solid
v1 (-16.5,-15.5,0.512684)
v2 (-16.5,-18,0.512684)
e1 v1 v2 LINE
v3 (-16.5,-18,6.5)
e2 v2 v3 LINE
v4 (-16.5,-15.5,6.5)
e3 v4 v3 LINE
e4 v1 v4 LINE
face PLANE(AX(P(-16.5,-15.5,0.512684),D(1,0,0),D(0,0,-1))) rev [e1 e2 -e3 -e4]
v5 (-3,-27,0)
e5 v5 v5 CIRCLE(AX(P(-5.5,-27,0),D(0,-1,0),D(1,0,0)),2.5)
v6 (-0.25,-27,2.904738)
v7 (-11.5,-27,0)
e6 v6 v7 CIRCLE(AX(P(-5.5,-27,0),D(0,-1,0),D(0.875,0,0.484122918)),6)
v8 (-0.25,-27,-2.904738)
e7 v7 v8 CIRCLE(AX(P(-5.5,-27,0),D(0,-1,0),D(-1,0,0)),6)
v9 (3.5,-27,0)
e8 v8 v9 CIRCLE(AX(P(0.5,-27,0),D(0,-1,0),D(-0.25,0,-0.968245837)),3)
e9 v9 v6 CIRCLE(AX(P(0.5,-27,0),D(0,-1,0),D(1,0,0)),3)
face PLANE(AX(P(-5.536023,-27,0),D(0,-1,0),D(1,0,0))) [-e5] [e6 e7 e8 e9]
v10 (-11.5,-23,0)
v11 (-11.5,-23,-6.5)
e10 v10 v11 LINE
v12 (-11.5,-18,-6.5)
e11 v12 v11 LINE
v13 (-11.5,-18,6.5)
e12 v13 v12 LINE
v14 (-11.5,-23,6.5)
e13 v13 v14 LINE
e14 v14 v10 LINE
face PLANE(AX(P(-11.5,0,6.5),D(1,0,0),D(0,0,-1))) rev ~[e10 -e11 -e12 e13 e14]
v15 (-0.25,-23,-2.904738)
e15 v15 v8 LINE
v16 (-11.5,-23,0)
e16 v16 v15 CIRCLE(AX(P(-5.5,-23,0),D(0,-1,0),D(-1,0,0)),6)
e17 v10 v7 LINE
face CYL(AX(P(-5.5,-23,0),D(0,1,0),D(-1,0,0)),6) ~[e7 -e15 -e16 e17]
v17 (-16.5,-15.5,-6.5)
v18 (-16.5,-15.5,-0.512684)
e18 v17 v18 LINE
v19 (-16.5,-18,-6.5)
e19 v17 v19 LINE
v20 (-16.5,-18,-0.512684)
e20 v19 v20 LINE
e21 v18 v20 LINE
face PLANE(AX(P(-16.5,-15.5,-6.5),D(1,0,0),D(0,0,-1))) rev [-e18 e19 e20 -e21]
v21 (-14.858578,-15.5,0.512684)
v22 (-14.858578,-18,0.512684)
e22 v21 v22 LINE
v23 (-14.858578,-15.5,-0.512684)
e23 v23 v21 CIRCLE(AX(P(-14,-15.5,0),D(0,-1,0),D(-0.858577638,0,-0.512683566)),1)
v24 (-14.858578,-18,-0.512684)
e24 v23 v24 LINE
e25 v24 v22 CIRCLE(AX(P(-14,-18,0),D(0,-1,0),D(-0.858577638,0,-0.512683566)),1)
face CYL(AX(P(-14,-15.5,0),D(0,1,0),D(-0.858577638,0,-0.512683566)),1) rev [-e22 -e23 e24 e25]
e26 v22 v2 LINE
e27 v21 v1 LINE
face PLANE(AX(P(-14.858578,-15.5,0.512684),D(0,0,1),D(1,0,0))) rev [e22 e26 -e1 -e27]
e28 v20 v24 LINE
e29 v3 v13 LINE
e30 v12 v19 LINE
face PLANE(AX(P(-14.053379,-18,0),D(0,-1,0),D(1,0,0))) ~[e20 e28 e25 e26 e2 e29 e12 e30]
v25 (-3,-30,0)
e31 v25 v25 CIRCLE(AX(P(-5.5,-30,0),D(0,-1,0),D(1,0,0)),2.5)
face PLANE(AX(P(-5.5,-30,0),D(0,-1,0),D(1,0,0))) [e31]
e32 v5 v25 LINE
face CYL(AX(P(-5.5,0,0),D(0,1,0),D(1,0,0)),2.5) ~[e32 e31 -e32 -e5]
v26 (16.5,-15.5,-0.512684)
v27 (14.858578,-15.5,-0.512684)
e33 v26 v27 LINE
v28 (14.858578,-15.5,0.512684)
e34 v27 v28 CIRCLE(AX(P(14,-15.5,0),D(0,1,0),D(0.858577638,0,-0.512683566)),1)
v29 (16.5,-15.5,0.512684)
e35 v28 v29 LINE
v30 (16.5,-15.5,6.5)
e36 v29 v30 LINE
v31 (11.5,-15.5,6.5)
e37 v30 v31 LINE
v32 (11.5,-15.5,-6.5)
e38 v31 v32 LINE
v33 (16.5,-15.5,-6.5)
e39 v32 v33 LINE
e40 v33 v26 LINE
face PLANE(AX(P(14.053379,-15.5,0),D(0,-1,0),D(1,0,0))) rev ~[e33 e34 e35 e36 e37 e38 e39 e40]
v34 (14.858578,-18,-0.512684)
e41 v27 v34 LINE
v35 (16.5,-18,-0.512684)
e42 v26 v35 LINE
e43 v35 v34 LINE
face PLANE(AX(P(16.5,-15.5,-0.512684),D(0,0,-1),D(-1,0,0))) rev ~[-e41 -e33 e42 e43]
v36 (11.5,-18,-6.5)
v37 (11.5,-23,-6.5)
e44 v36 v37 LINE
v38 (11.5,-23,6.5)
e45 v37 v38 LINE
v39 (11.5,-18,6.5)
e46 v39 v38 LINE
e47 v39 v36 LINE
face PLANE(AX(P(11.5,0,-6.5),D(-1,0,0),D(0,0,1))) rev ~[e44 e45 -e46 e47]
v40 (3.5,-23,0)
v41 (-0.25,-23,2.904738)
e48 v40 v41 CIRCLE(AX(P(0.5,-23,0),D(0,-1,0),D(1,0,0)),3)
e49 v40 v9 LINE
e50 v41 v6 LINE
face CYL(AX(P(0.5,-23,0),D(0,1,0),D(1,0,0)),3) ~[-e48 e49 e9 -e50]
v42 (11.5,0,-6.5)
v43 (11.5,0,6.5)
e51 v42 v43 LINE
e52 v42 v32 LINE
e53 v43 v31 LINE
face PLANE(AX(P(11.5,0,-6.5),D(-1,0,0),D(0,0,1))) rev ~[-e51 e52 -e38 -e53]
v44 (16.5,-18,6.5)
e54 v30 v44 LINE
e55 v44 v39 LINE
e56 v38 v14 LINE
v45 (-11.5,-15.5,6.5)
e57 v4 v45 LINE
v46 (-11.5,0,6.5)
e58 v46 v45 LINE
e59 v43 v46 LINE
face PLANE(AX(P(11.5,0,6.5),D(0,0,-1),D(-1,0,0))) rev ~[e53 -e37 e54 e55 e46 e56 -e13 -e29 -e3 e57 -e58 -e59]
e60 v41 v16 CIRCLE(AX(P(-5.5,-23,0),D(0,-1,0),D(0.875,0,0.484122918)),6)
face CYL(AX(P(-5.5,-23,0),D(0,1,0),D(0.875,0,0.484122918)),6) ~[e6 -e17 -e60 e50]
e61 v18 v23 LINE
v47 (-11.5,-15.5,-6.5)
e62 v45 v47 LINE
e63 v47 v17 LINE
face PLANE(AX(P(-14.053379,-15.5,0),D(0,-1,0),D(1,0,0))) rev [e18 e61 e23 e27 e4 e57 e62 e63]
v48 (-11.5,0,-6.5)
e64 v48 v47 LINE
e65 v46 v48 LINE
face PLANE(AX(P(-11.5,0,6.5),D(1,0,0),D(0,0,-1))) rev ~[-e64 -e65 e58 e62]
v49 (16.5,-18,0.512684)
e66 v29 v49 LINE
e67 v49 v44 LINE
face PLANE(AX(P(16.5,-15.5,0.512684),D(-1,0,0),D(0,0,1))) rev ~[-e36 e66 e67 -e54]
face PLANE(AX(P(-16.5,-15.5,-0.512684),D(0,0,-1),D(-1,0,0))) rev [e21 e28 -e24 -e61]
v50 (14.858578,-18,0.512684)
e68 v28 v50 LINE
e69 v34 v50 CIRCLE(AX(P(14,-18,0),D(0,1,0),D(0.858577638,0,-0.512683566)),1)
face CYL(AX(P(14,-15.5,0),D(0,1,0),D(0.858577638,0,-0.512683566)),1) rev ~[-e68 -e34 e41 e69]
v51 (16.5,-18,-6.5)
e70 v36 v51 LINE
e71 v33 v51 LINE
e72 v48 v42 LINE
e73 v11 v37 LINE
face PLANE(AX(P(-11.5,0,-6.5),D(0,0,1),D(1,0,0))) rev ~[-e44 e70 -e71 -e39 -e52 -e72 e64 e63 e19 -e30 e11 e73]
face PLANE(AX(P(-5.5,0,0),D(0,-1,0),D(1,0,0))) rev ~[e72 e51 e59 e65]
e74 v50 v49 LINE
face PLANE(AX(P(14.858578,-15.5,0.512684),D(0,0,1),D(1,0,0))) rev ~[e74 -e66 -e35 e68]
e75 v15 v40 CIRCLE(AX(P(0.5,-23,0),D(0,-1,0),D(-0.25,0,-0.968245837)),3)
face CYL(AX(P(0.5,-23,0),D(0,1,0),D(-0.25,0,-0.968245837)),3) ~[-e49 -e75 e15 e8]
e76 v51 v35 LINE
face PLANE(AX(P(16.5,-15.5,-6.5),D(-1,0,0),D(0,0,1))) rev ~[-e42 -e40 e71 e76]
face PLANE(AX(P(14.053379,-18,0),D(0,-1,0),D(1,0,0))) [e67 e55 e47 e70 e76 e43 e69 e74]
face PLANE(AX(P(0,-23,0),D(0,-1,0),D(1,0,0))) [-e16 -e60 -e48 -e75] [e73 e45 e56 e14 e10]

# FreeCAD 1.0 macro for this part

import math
import FreeCAD as App
import Part
import Sketcher
from FreeCAD import Vector
Q = App.Units.Quantity


def add_polygon(sketch, points):
    """Adds a closed chain of lines whose ends are joined by coincident constraints."""
    first, n = sketch.GeometryCount, len(points)
    for a, b in zip(points, points[1:] + points[:1]):
        sketch.addGeometry(Part.LineSegment(App.Vector(*a, 0), App.Vector(*b, 0)), False)
    for i in range(n):
        sketch.addConstraint(Sketcher.Constraint("Coincident", first + i, 2, first + (i + 1) % n, 1))

doc = App.newDocument("Part")
body = doc.addObject("PartDesign::Body", "Body")

sketch1 = body.newObject("Sketcher::SketchObject", "Sketch")
sketch1.AttachmentSupport = (doc.getObject("XZ_Plane"), [""])
sketch1.MapMode = "FlatFace"
add_polygon(sketch1, [(-11.5, 6.5), (-11.5, -6.5), (11.5, -6.5), (11.5, 6.5)])
sketch1.addGeometry(Part.Circle(Vector(-5.5, 0, 0), Vector(0, 0, 1), 2.5), False)
sketch1.addConstraint([
    Sketcher.Constraint("Vertical", 0),
    Sketcher.Constraint("Horizontal", 1),
    Sketcher.Constraint("Vertical", 2),
    Sketcher.Constraint("Horizontal", 3),
    Sketcher.Constraint("Symmetric", 0, 2, 2, 2, -1, 1),
    Sketcher.Constraint("PointOnObject", 4, 3, -1),
    Sketcher.Constraint("Diameter", 4, Q("5 mm")),
    Sketcher.Constraint("DistanceX", 1, 1, 1, 2, Q("23 mm")),
    Sketcher.Constraint("DistanceY", 0, 2, 0, 1, Q("13 mm")),
    Sketcher.Constraint("DistanceX", 0, 2, 4, 3, Q("6 mm")),
])
pad1 = body.newObject("PartDesign::Pad", "Pad")
pad1.Profile = sketch1
pad1.Length = 23

sketch2 = body.newObject("Sketcher::SketchObject", "Sketch001")
sketch2.AttachmentSupport = (doc.getObject("XZ_Plane"), [""])
sketch2.MapMode = "FlatFace"
sketch2.AttachmentOffset = App.Placement(Vector(0, 0, 15.5), App.Rotation())
sketch2.addGeometry([
    Part.LineSegment(Vector(11.5, 6.5, 0), Vector(11.5, -6.5, 0)),
    Part.LineSegment(Vector(11.5, -6.5, 0), Vector(16.5, -6.5, 0)),
    Part.LineSegment(Vector(16.5, -6.5, 0), Vector(16.5, -0.5, 0)),
    Part.LineSegment(Vector(16.5, -0.5, 0), Vector(14.9, -0.5, 0)),
    Part.ArcOfCircle(Part.Circle(Vector(14, 0, 0), Vector(0, 0, 1), 1), math.radians(31), math.radians(329)),
    Part.LineSegment(Vector(14.9, 0.5, 0), Vector(16.5, 0.5, 0)),
    Part.LineSegment(Vector(16.5, 0.5, 0), Vector(16.5, 6.5, 0)),
    Part.LineSegment(Vector(16.5, 6.5, 0), Vector(11.5, 6.5, 0)),
], False)
sketch2.addConstraint([
    Sketcher.Constraint("Coincident", 0, 2, 1, 1),
    Sketcher.Constraint("Coincident", 1, 2, 2, 1),
    Sketcher.Constraint("Coincident", 2, 2, 3, 1),
    Sketcher.Constraint("Coincident", 3, 2, 4, 2),
    Sketcher.Constraint("Coincident", 4, 1, 5, 1),
    Sketcher.Constraint("Coincident", 5, 2, 6, 1),
    Sketcher.Constraint("Coincident", 6, 2, 7, 1),
    Sketcher.Constraint("Coincident", 7, 2, 0, 1),
    Sketcher.Constraint("Vertical", 0),
    Sketcher.Constraint("Horizontal", 1),
    Sketcher.Constraint("Vertical", 2),
    Sketcher.Constraint("Horizontal", 3),
    Sketcher.Constraint("Horizontal", 5),
    Sketcher.Constraint("Vertical", 6),
    Sketcher.Constraint("Horizontal", 7),
    Sketcher.Constraint("Symmetric", 3, 2, 4, 1, -1),
    Sketcher.Constraint("Symmetric", 1, 2, 6, 2, -1),
    Sketcher.Constraint("Radius", 4, Q("1 mm")),
    Sketcher.Constraint("DistanceX", 1, 1, 1, 2, Q("5 mm")),
    Sketcher.Constraint("DistanceY", 0, 2, 0, 1, Q("13 mm")),
    Sketcher.Constraint("DistanceX", -1, 1, 4, 3, Q("14 mm")),
    Sketcher.Constraint("DistanceX", -1, 1, 0, 2, Q("11.5 mm")),
    Sketcher.Constraint("DistanceX", 3, 2, 3, 1, Q("1.641422 mm")),
])
pad2 = body.newObject("PartDesign::Pad", "Pad001")
pad2.Profile = sketch2
pad2.Length = 2.5
body2 = doc.addObject("PartDesign::Body", "Body001")
doc.recompute()

body2.BaseFeature = body
doc.recompute()

mirroring = doc.addObject("Part::Mirroring", "Mirroring")
mirroring.Source = body
mirroring.Base = Vector(0, 0, 0)
mirroring.Normal = Vector(1, 0, 0)
body3 = doc.addObject("PartDesign::Body", "Body002")
body3.BaseFeature = mirroring
boolean = body2.newObject("PartDesign::Boolean", "Boolean")
boolean.Type = "Fuse"
boolean.addObjects([body3])
doc.recompute()

sketch3 = body2.newObject("Sketcher::SketchObject", "Sketch002")
sketch3.AttachmentSupport = (doc.getObject("XZ_Plane001"), [""])
sketch3.MapMode = "FlatFace"
sketch3.AttachmentOffset = App.Placement(Vector(0, 0, 23), App.Rotation())
sketch3.addGeometry([
    Part.ArcOfCircle(Part.Circle(Vector(-5.5, 0, 0), Vector(0, 0, 1), 6), math.radians(29), math.radians(180)),
    Part.ArcOfCircle(Part.Circle(Vector(-5.5, 0, 0), Vector(0, 0, 1), 6), math.radians(180), math.radians(331)),
    Part.ArcOfCircle(Part.Circle(Vector(0.5, 0, 0), Vector(0, 0, 1), 3), math.radians(-104), math.radians(0)),
    Part.ArcOfCircle(Part.Circle(Vector(0.5, 0, 0), Vector(0, 0, 1), 3), math.radians(0), math.radians(104)),
    Part.Circle(Vector(-5.5, 0, 0), Vector(0, 0, 1), 2.5),
], False)
sketch3.addConstraint([
    Sketcher.Constraint("Tangent", 0, 2, 1, 1),
    Sketcher.Constraint("Coincident", 1, 2, 2, 1),
    Sketcher.Constraint("Tangent", 2, 2, 3, 1),
    Sketcher.Constraint("Coincident", 3, 2, 0, 1),
    Sketcher.Constraint("Coincident", 4, 3, 0, 3),
    Sketcher.Constraint("Equal", 0, 1),
    Sketcher.Constraint("Equal", 2, 3),
    Sketcher.Constraint("Symmetric", 1, 2, 3, 2, -1),
    Sketcher.Constraint("PointOnObject", 0, 2, -1),
    Sketcher.Constraint("PointOnObject", 2, 2, -1),
    Sketcher.Constraint("Diameter", 4, Q("5 mm")),
    Sketcher.Constraint("Radius", 0, Q("6 mm")),
    Sketcher.Constraint("Radius", 2, Q("3 mm")),
    Sketcher.Constraint("DistanceX", 0, 3, 2, 3, Q("6 mm")),
    Sketcher.Constraint("DistanceX", 0, 3, -1, 1, Q("5.5 mm")),
])
pad3 = body2.newObject("PartDesign::Pad", "Pad002")
pad3.Profile = sketch3
pad3.Length = 4

sketch4 = body2.newObject("Sketcher::SketchObject", "Sketch003")
sketch4.AttachmentSupport = (doc.getObject("XZ_Plane001"), [""])
sketch4.MapMode = "FlatFace"
sketch4.addGeometry(Part.Circle(Vector(-5.5, 0, 0), Vector(0, 0, 1), 2.5), False)
sketch4.addConstraint([
    Sketcher.Constraint("PointOnObject", 0, 3, -1),
    Sketcher.Constraint("Diameter", 0, Q("5 mm")),
    Sketcher.Constraint("DistanceX", 0, 3, -1, 1, Q("5.5 mm")),
])
pad4 = body2.newObject("PartDesign::Pad", "Pad003")
pad4.Profile = sketch4
pad4.Length = 30
mirroring.Visibility = False

doc.recompute()
